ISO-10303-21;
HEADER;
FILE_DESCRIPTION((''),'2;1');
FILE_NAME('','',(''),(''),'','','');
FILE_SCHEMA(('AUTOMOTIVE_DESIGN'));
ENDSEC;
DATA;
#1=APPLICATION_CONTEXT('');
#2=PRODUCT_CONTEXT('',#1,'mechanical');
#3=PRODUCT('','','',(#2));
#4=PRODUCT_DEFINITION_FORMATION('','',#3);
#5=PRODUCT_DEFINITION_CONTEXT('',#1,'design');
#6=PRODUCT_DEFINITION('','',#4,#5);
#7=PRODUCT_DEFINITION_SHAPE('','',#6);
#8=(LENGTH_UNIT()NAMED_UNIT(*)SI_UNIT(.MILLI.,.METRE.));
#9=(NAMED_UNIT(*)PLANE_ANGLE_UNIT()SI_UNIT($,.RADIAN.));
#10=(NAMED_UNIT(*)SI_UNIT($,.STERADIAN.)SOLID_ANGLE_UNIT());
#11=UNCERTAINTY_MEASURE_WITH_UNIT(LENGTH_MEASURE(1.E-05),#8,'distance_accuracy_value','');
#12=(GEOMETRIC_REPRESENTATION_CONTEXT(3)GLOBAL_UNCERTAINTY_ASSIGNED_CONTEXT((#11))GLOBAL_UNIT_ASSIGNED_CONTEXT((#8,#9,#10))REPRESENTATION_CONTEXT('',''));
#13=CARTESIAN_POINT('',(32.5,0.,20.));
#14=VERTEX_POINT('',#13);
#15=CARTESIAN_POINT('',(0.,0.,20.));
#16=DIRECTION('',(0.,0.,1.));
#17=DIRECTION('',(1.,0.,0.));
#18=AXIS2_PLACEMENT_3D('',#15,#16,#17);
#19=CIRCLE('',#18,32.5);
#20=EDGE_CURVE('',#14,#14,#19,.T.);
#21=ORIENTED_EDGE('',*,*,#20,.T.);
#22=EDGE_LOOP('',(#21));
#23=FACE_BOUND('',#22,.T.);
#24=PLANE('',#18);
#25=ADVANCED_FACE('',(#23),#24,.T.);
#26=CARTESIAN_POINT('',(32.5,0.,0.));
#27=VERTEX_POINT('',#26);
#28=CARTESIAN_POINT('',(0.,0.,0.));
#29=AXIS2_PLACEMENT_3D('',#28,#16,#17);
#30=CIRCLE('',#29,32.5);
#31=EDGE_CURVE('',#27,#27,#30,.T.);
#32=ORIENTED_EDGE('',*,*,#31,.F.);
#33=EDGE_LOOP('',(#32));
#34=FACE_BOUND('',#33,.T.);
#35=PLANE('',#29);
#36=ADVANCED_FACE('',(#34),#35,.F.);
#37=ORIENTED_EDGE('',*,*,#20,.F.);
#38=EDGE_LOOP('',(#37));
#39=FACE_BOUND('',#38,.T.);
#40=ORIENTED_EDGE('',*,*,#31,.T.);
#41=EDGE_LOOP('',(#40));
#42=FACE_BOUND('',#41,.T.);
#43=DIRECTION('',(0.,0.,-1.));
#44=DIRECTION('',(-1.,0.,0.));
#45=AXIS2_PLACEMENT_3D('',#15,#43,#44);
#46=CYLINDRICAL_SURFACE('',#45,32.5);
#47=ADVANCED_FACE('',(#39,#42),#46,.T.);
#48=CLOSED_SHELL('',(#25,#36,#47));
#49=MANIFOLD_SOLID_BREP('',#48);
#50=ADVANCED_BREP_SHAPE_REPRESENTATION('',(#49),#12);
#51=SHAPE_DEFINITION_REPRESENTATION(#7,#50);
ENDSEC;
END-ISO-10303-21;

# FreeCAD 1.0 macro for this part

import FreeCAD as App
import Part
import Sketcher
from FreeCAD import Vector
Q = App.Units.Quantity

doc = App.newDocument("Part")
body = doc.addObject("PartDesign::Body", "Body")

sketch1 = body.newObject("Sketcher::SketchObject", "Sketch")
sketch1.AttachmentSupport = (doc.getObject("XY_Plane"), [""])
sketch1.MapMode = "FlatFace"
sketch1.addGeometry(Part.Circle(Vector(0, 0, 0), Vector(0, 0, 1), 32.5), False)
sketch1.addConstraint(Sketcher.Constraint("Coincident", 0, 3, -1, 1))
sketch1.addConstraint(Sketcher.Constraint("Diameter", 0, Q("65 mm")))
pad1 = body.newObject("PartDesign::Pad", "Pad")
pad1.Profile = sketch1
pad1.Length = 20

doc.recompute()
